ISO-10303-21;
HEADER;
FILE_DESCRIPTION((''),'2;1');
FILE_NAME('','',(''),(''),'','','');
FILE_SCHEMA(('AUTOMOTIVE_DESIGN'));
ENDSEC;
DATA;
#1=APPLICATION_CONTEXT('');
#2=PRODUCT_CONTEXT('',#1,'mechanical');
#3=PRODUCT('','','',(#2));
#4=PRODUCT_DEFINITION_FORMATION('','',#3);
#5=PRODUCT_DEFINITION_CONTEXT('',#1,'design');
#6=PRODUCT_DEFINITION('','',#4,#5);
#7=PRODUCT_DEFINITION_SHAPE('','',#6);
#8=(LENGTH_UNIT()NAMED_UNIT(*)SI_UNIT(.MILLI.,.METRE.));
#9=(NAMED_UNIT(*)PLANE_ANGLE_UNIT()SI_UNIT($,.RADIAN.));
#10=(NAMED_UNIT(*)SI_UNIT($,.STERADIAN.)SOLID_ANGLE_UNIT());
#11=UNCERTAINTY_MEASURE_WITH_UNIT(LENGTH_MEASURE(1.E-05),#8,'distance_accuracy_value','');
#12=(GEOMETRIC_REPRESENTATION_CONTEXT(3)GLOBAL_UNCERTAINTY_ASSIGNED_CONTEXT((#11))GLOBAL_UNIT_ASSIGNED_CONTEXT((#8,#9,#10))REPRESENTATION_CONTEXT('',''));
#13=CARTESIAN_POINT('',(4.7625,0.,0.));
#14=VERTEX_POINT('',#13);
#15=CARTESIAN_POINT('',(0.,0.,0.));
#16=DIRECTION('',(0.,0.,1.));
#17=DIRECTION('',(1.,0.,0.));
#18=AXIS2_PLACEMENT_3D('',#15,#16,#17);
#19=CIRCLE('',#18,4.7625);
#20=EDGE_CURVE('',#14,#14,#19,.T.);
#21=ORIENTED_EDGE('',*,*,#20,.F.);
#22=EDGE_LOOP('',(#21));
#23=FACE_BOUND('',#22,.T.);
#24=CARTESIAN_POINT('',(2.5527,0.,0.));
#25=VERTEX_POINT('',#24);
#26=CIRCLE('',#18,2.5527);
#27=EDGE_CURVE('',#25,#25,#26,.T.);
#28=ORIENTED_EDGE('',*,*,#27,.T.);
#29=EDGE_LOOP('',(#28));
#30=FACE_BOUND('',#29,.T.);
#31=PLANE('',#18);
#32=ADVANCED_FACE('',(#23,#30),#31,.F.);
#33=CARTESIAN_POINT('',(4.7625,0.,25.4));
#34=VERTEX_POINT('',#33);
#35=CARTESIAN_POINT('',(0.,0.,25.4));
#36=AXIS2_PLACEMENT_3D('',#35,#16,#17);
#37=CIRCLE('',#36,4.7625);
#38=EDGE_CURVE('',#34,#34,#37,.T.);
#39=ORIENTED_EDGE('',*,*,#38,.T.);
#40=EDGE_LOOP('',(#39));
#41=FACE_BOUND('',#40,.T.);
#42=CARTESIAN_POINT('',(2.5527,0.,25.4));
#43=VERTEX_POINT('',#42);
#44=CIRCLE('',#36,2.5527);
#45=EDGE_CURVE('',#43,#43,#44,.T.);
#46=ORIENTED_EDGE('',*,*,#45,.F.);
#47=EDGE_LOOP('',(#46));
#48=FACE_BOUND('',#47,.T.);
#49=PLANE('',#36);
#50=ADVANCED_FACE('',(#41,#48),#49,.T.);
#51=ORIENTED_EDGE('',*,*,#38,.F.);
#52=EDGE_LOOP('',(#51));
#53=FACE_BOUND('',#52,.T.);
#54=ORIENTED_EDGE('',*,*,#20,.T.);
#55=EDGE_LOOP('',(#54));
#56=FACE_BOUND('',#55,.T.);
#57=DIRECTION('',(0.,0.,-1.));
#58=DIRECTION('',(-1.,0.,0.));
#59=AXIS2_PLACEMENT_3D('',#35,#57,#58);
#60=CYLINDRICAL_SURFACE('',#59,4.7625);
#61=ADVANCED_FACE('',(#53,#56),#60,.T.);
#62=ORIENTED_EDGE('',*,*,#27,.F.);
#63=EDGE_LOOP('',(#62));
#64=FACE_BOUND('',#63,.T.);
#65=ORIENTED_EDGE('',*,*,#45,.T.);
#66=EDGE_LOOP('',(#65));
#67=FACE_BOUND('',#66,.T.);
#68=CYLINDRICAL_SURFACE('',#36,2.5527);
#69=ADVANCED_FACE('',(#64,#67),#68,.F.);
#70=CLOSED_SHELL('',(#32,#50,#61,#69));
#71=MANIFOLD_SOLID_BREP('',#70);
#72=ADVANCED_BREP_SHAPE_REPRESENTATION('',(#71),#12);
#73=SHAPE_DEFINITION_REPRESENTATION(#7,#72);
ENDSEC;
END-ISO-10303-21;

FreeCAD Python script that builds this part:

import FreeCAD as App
import Part
import Sketcher

V = App.Vector
Q = App.Units.Quantity

doc = App.newDocument("Part")
body = doc.addObject("PartDesign::Body", "Body")

sketch1 = body.newObject("Sketcher::SketchObject", "Sketch")
sketch1.AttachmentSupport = (doc.getObject("XY_Plane"), [""])
sketch1.MapMode = "FlatFace"
sketch1.addGeometry(Part.Circle(V(0, 0, 0), V(0, 0, 1), 4.8), False)
sketch1.addConstraint([
    Sketcher.Constraint("Coincident", 0, 3, -1, 1),
    Sketcher.Constraint("Diameter", 0, Q("0.375 in")),
])
pad1 = body.newObject("PartDesign::Pad", "Pad")
pad1.Profile = sketch1
pad1.Length = Q("1 in")

sketch2 = body.newObject("Sketcher::SketchObject", "Sketch001")
sketch2.AttachmentSupport = (doc.getObject("XY_Plane"), [""])
sketch2.MapMode = "FlatFace"
sketch2.AttachmentOffset = App.Placement(V(0, 0, 1 * 25.4), App.Rotation())
sketch2.addGeometry(Part.Circle(V(0, 0, 0), V(0, 0, 1), 2.6), False)
sketch2.addConstraint([
    Sketcher.Constraint("Coincident", 0, 3, -1, 1),
    Sketcher.Constraint("Diameter", 0, Q("0.201 in")),
])
doc.recompute()
hole = body.newObject("PartDesign::Hole", "Hole")
hole.Profile = sketch2
hole.ThreadType = "None"
hole.Diameter = Q("0.201 in")
hole.DepthType = "ThroughAll"

doc.recompute()
